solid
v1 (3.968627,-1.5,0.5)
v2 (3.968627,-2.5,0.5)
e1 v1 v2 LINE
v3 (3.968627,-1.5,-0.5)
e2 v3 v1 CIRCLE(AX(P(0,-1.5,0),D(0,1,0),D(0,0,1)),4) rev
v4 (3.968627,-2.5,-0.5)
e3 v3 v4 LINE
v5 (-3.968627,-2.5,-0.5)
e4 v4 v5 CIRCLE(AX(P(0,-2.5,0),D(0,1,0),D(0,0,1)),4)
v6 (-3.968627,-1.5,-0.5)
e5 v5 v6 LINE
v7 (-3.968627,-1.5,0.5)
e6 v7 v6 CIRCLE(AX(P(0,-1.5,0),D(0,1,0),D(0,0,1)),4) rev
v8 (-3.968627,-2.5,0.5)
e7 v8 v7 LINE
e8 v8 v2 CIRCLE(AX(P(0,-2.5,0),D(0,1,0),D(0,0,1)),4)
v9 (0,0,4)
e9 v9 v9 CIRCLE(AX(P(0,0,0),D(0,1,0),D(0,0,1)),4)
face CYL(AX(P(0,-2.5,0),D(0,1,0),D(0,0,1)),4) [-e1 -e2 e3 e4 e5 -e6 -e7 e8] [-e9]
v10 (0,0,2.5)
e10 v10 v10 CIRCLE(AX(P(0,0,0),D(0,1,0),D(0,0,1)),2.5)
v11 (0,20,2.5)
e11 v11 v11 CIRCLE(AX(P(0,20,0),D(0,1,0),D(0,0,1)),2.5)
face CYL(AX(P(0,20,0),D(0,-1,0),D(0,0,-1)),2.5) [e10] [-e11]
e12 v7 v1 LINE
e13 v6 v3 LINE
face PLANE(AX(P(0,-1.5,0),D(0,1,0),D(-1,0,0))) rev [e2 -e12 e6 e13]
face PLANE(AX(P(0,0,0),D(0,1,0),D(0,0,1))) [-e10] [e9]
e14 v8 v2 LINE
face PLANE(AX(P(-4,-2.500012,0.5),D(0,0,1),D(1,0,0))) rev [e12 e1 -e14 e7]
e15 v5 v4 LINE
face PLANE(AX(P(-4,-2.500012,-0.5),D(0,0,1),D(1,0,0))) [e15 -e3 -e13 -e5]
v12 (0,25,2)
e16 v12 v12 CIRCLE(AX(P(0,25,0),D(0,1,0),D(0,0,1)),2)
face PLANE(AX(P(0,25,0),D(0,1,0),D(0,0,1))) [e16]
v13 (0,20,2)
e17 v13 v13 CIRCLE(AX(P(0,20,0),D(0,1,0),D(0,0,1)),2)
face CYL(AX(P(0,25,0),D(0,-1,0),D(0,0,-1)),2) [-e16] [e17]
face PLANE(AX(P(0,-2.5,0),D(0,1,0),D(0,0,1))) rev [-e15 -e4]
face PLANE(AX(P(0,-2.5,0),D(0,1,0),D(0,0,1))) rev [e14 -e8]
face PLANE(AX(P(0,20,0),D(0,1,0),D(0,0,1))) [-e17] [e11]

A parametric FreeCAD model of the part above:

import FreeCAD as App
import Part
import Sketcher


def add_polygon(sketch, points):
    """Adds a closed chain of lines whose ends are joined by coincident constraints."""
    first, n = sketch.GeometryCount, len(points)
    for a, b in zip(points, points[1:] + points[:1]):
        sketch.addGeometry(Part.LineSegment(App.Vector(*a, 0), App.Vector(*b, 0)), False)
    for i in range(n):
        sketch.addConstraint(Sketcher.Constraint("Coincident", first + i, 2, first + (i + 1) % n, 1))

doc = App.newDocument("Part")
params = doc.addObject("Spreadsheet::Sheet", "Params")
for row, (alias, value) in enumerate([
    ("sketch1_diameter", "8 mm"),
    ("pad1_length", "2.5 mm"),
    ("sketch2_diameter", "5 mm"),
    ("pad2_length", "20 mm"),
    ("sketch3_diameter", "4 mm"),
    ("pad3_length", "5 mm"),
    ("sketch4_width", "8 mm"),
    ("sketch4_height", "1 mm"),
    ("pocket1_length", "29.07579 mm"),
    ("pocket1_length2", "1 mm"),
], start=1):
    params.set(f"A{row}", alias)
    params.set(f"B{row}", "=" + value)
    params.setAlias(f"B{row}", alias)

body = doc.addObject("PartDesign::Body", "Body")

sketch1 = doc.addObject("Sketcher::SketchObject", "Sketch")
body.addObject(sketch1)
sketch1.AttachmentSupport = (doc.XZ_Plane, [""])
sketch1.MapMode = "FlatFace"
sketch1.addGeometry(Part.Circle(App.Vector(0, 0, 0), App.Vector(0, 0, 1), 4), False)
sketch1.addConstraint([
    Sketcher.Constraint("Coincident", 0, 3, -1, 1),
    Sketcher.Constraint("Diameter", 0, 8.0),
])
sketch1.setExpression("Constraints[1]", "Params.sketch1_diameter")
pad1 = doc.addObject("PartDesign::Pad", "Pad")
body.addObject(pad1)
pad1.Profile = sketch1
pad1.setExpression("Length", "Params.pad1_length")

sketch2 = doc.addObject("Sketcher::SketchObject", "Sketch001")
body.addObject(sketch2)
sketch2.AttachmentSupport = (doc.XZ_Plane, [""])
sketch2.MapMode = "FlatFace"
sketch2.addGeometry(Part.Circle(App.Vector(0, 0, 0), App.Vector(0, 0, 1), 2.5), False)
sketch2.addConstraint([
    Sketcher.Constraint("Coincident", 0, 3, -1, 1),
    Sketcher.Constraint("Diameter", 0, 5.0),
])
sketch2.setExpression("Constraints[1]", "Params.sketch2_diameter")
pad2 = doc.addObject("PartDesign::Pad", "Pad001")
body.addObject(pad2)
pad2.Profile = sketch2
pad2.setExpression("Length", "Params.pad2_length")
pad2.Reversed = True

sketch3 = doc.addObject("Sketcher::SketchObject", "Sketch002")
body.addObject(sketch3)
sketch3.AttachmentSupport = (doc.XZ_Plane, [""])
sketch3.MapMode = "FlatFace"
sketch3.AttachmentOffset = App.Placement(App.Vector(0, 0, -20), App.Rotation())
sketch3.addGeometry(Part.Circle(App.Vector(0, 0, 0), App.Vector(0, 0, 1), 2), False)
sketch3.addConstraint([
    Sketcher.Constraint("Coincident", 0, 3, -1, 1),
    Sketcher.Constraint("Diameter", 0, 4.0),
])
sketch3.setExpression("Constraints[1]", "Params.sketch3_diameter")
pad3 = doc.addObject("PartDesign::Pad", "Pad002")
body.addObject(pad3)
pad3.Profile = sketch3
pad3.setExpression("Length", "Params.pad3_length")
pad3.Reversed = True

sketch4 = doc.addObject("Sketcher::SketchObject", "Sketch003")
body.addObject(sketch4)
sketch4.AttachmentSupport = (doc.XZ_Plane, [""])
sketch4.MapMode = "FlatFace"
sketch4.AttachmentOffset = App.Placement(App.Vector(0, 0, 2.5), App.Rotation())
add_polygon(sketch4, [(-4, 0.5), (-4, -0.5), (4, -0.5), (4, 0.5)])
sketch4.addConstraint([
    Sketcher.Constraint("Vertical", 0),
    Sketcher.Constraint("Horizontal", 1),
    Sketcher.Constraint("Vertical", 2),
    Sketcher.Constraint("Horizontal", 3),
    Sketcher.Constraint("Symmetric", 0, 2, 2, 2, -1, 1),
    Sketcher.Constraint("DistanceX", 1, 1, 1, 2, 8.0),
    Sketcher.Constraint("DistanceY", 0, 2, 0, 1, 1.0),
])
sketch4.setExpression("Constraints[9]", "Params.sketch4_width")
sketch4.setExpression("Constraints[10]", "Params.sketch4_height")
pocket1 = doc.addObject("PartDesign::Pocket", "Pocket")
body.addObject(pocket1)
pocket1.Profile = sketch4
pocket1.Type = "TwoLengths"
pocket1.setExpression("Length", "Params.pocket1_length")
pocket1.setExpression("Length2", "Params.pocket1_length2")
pocket1.Reversed = True

doc.recompute()
